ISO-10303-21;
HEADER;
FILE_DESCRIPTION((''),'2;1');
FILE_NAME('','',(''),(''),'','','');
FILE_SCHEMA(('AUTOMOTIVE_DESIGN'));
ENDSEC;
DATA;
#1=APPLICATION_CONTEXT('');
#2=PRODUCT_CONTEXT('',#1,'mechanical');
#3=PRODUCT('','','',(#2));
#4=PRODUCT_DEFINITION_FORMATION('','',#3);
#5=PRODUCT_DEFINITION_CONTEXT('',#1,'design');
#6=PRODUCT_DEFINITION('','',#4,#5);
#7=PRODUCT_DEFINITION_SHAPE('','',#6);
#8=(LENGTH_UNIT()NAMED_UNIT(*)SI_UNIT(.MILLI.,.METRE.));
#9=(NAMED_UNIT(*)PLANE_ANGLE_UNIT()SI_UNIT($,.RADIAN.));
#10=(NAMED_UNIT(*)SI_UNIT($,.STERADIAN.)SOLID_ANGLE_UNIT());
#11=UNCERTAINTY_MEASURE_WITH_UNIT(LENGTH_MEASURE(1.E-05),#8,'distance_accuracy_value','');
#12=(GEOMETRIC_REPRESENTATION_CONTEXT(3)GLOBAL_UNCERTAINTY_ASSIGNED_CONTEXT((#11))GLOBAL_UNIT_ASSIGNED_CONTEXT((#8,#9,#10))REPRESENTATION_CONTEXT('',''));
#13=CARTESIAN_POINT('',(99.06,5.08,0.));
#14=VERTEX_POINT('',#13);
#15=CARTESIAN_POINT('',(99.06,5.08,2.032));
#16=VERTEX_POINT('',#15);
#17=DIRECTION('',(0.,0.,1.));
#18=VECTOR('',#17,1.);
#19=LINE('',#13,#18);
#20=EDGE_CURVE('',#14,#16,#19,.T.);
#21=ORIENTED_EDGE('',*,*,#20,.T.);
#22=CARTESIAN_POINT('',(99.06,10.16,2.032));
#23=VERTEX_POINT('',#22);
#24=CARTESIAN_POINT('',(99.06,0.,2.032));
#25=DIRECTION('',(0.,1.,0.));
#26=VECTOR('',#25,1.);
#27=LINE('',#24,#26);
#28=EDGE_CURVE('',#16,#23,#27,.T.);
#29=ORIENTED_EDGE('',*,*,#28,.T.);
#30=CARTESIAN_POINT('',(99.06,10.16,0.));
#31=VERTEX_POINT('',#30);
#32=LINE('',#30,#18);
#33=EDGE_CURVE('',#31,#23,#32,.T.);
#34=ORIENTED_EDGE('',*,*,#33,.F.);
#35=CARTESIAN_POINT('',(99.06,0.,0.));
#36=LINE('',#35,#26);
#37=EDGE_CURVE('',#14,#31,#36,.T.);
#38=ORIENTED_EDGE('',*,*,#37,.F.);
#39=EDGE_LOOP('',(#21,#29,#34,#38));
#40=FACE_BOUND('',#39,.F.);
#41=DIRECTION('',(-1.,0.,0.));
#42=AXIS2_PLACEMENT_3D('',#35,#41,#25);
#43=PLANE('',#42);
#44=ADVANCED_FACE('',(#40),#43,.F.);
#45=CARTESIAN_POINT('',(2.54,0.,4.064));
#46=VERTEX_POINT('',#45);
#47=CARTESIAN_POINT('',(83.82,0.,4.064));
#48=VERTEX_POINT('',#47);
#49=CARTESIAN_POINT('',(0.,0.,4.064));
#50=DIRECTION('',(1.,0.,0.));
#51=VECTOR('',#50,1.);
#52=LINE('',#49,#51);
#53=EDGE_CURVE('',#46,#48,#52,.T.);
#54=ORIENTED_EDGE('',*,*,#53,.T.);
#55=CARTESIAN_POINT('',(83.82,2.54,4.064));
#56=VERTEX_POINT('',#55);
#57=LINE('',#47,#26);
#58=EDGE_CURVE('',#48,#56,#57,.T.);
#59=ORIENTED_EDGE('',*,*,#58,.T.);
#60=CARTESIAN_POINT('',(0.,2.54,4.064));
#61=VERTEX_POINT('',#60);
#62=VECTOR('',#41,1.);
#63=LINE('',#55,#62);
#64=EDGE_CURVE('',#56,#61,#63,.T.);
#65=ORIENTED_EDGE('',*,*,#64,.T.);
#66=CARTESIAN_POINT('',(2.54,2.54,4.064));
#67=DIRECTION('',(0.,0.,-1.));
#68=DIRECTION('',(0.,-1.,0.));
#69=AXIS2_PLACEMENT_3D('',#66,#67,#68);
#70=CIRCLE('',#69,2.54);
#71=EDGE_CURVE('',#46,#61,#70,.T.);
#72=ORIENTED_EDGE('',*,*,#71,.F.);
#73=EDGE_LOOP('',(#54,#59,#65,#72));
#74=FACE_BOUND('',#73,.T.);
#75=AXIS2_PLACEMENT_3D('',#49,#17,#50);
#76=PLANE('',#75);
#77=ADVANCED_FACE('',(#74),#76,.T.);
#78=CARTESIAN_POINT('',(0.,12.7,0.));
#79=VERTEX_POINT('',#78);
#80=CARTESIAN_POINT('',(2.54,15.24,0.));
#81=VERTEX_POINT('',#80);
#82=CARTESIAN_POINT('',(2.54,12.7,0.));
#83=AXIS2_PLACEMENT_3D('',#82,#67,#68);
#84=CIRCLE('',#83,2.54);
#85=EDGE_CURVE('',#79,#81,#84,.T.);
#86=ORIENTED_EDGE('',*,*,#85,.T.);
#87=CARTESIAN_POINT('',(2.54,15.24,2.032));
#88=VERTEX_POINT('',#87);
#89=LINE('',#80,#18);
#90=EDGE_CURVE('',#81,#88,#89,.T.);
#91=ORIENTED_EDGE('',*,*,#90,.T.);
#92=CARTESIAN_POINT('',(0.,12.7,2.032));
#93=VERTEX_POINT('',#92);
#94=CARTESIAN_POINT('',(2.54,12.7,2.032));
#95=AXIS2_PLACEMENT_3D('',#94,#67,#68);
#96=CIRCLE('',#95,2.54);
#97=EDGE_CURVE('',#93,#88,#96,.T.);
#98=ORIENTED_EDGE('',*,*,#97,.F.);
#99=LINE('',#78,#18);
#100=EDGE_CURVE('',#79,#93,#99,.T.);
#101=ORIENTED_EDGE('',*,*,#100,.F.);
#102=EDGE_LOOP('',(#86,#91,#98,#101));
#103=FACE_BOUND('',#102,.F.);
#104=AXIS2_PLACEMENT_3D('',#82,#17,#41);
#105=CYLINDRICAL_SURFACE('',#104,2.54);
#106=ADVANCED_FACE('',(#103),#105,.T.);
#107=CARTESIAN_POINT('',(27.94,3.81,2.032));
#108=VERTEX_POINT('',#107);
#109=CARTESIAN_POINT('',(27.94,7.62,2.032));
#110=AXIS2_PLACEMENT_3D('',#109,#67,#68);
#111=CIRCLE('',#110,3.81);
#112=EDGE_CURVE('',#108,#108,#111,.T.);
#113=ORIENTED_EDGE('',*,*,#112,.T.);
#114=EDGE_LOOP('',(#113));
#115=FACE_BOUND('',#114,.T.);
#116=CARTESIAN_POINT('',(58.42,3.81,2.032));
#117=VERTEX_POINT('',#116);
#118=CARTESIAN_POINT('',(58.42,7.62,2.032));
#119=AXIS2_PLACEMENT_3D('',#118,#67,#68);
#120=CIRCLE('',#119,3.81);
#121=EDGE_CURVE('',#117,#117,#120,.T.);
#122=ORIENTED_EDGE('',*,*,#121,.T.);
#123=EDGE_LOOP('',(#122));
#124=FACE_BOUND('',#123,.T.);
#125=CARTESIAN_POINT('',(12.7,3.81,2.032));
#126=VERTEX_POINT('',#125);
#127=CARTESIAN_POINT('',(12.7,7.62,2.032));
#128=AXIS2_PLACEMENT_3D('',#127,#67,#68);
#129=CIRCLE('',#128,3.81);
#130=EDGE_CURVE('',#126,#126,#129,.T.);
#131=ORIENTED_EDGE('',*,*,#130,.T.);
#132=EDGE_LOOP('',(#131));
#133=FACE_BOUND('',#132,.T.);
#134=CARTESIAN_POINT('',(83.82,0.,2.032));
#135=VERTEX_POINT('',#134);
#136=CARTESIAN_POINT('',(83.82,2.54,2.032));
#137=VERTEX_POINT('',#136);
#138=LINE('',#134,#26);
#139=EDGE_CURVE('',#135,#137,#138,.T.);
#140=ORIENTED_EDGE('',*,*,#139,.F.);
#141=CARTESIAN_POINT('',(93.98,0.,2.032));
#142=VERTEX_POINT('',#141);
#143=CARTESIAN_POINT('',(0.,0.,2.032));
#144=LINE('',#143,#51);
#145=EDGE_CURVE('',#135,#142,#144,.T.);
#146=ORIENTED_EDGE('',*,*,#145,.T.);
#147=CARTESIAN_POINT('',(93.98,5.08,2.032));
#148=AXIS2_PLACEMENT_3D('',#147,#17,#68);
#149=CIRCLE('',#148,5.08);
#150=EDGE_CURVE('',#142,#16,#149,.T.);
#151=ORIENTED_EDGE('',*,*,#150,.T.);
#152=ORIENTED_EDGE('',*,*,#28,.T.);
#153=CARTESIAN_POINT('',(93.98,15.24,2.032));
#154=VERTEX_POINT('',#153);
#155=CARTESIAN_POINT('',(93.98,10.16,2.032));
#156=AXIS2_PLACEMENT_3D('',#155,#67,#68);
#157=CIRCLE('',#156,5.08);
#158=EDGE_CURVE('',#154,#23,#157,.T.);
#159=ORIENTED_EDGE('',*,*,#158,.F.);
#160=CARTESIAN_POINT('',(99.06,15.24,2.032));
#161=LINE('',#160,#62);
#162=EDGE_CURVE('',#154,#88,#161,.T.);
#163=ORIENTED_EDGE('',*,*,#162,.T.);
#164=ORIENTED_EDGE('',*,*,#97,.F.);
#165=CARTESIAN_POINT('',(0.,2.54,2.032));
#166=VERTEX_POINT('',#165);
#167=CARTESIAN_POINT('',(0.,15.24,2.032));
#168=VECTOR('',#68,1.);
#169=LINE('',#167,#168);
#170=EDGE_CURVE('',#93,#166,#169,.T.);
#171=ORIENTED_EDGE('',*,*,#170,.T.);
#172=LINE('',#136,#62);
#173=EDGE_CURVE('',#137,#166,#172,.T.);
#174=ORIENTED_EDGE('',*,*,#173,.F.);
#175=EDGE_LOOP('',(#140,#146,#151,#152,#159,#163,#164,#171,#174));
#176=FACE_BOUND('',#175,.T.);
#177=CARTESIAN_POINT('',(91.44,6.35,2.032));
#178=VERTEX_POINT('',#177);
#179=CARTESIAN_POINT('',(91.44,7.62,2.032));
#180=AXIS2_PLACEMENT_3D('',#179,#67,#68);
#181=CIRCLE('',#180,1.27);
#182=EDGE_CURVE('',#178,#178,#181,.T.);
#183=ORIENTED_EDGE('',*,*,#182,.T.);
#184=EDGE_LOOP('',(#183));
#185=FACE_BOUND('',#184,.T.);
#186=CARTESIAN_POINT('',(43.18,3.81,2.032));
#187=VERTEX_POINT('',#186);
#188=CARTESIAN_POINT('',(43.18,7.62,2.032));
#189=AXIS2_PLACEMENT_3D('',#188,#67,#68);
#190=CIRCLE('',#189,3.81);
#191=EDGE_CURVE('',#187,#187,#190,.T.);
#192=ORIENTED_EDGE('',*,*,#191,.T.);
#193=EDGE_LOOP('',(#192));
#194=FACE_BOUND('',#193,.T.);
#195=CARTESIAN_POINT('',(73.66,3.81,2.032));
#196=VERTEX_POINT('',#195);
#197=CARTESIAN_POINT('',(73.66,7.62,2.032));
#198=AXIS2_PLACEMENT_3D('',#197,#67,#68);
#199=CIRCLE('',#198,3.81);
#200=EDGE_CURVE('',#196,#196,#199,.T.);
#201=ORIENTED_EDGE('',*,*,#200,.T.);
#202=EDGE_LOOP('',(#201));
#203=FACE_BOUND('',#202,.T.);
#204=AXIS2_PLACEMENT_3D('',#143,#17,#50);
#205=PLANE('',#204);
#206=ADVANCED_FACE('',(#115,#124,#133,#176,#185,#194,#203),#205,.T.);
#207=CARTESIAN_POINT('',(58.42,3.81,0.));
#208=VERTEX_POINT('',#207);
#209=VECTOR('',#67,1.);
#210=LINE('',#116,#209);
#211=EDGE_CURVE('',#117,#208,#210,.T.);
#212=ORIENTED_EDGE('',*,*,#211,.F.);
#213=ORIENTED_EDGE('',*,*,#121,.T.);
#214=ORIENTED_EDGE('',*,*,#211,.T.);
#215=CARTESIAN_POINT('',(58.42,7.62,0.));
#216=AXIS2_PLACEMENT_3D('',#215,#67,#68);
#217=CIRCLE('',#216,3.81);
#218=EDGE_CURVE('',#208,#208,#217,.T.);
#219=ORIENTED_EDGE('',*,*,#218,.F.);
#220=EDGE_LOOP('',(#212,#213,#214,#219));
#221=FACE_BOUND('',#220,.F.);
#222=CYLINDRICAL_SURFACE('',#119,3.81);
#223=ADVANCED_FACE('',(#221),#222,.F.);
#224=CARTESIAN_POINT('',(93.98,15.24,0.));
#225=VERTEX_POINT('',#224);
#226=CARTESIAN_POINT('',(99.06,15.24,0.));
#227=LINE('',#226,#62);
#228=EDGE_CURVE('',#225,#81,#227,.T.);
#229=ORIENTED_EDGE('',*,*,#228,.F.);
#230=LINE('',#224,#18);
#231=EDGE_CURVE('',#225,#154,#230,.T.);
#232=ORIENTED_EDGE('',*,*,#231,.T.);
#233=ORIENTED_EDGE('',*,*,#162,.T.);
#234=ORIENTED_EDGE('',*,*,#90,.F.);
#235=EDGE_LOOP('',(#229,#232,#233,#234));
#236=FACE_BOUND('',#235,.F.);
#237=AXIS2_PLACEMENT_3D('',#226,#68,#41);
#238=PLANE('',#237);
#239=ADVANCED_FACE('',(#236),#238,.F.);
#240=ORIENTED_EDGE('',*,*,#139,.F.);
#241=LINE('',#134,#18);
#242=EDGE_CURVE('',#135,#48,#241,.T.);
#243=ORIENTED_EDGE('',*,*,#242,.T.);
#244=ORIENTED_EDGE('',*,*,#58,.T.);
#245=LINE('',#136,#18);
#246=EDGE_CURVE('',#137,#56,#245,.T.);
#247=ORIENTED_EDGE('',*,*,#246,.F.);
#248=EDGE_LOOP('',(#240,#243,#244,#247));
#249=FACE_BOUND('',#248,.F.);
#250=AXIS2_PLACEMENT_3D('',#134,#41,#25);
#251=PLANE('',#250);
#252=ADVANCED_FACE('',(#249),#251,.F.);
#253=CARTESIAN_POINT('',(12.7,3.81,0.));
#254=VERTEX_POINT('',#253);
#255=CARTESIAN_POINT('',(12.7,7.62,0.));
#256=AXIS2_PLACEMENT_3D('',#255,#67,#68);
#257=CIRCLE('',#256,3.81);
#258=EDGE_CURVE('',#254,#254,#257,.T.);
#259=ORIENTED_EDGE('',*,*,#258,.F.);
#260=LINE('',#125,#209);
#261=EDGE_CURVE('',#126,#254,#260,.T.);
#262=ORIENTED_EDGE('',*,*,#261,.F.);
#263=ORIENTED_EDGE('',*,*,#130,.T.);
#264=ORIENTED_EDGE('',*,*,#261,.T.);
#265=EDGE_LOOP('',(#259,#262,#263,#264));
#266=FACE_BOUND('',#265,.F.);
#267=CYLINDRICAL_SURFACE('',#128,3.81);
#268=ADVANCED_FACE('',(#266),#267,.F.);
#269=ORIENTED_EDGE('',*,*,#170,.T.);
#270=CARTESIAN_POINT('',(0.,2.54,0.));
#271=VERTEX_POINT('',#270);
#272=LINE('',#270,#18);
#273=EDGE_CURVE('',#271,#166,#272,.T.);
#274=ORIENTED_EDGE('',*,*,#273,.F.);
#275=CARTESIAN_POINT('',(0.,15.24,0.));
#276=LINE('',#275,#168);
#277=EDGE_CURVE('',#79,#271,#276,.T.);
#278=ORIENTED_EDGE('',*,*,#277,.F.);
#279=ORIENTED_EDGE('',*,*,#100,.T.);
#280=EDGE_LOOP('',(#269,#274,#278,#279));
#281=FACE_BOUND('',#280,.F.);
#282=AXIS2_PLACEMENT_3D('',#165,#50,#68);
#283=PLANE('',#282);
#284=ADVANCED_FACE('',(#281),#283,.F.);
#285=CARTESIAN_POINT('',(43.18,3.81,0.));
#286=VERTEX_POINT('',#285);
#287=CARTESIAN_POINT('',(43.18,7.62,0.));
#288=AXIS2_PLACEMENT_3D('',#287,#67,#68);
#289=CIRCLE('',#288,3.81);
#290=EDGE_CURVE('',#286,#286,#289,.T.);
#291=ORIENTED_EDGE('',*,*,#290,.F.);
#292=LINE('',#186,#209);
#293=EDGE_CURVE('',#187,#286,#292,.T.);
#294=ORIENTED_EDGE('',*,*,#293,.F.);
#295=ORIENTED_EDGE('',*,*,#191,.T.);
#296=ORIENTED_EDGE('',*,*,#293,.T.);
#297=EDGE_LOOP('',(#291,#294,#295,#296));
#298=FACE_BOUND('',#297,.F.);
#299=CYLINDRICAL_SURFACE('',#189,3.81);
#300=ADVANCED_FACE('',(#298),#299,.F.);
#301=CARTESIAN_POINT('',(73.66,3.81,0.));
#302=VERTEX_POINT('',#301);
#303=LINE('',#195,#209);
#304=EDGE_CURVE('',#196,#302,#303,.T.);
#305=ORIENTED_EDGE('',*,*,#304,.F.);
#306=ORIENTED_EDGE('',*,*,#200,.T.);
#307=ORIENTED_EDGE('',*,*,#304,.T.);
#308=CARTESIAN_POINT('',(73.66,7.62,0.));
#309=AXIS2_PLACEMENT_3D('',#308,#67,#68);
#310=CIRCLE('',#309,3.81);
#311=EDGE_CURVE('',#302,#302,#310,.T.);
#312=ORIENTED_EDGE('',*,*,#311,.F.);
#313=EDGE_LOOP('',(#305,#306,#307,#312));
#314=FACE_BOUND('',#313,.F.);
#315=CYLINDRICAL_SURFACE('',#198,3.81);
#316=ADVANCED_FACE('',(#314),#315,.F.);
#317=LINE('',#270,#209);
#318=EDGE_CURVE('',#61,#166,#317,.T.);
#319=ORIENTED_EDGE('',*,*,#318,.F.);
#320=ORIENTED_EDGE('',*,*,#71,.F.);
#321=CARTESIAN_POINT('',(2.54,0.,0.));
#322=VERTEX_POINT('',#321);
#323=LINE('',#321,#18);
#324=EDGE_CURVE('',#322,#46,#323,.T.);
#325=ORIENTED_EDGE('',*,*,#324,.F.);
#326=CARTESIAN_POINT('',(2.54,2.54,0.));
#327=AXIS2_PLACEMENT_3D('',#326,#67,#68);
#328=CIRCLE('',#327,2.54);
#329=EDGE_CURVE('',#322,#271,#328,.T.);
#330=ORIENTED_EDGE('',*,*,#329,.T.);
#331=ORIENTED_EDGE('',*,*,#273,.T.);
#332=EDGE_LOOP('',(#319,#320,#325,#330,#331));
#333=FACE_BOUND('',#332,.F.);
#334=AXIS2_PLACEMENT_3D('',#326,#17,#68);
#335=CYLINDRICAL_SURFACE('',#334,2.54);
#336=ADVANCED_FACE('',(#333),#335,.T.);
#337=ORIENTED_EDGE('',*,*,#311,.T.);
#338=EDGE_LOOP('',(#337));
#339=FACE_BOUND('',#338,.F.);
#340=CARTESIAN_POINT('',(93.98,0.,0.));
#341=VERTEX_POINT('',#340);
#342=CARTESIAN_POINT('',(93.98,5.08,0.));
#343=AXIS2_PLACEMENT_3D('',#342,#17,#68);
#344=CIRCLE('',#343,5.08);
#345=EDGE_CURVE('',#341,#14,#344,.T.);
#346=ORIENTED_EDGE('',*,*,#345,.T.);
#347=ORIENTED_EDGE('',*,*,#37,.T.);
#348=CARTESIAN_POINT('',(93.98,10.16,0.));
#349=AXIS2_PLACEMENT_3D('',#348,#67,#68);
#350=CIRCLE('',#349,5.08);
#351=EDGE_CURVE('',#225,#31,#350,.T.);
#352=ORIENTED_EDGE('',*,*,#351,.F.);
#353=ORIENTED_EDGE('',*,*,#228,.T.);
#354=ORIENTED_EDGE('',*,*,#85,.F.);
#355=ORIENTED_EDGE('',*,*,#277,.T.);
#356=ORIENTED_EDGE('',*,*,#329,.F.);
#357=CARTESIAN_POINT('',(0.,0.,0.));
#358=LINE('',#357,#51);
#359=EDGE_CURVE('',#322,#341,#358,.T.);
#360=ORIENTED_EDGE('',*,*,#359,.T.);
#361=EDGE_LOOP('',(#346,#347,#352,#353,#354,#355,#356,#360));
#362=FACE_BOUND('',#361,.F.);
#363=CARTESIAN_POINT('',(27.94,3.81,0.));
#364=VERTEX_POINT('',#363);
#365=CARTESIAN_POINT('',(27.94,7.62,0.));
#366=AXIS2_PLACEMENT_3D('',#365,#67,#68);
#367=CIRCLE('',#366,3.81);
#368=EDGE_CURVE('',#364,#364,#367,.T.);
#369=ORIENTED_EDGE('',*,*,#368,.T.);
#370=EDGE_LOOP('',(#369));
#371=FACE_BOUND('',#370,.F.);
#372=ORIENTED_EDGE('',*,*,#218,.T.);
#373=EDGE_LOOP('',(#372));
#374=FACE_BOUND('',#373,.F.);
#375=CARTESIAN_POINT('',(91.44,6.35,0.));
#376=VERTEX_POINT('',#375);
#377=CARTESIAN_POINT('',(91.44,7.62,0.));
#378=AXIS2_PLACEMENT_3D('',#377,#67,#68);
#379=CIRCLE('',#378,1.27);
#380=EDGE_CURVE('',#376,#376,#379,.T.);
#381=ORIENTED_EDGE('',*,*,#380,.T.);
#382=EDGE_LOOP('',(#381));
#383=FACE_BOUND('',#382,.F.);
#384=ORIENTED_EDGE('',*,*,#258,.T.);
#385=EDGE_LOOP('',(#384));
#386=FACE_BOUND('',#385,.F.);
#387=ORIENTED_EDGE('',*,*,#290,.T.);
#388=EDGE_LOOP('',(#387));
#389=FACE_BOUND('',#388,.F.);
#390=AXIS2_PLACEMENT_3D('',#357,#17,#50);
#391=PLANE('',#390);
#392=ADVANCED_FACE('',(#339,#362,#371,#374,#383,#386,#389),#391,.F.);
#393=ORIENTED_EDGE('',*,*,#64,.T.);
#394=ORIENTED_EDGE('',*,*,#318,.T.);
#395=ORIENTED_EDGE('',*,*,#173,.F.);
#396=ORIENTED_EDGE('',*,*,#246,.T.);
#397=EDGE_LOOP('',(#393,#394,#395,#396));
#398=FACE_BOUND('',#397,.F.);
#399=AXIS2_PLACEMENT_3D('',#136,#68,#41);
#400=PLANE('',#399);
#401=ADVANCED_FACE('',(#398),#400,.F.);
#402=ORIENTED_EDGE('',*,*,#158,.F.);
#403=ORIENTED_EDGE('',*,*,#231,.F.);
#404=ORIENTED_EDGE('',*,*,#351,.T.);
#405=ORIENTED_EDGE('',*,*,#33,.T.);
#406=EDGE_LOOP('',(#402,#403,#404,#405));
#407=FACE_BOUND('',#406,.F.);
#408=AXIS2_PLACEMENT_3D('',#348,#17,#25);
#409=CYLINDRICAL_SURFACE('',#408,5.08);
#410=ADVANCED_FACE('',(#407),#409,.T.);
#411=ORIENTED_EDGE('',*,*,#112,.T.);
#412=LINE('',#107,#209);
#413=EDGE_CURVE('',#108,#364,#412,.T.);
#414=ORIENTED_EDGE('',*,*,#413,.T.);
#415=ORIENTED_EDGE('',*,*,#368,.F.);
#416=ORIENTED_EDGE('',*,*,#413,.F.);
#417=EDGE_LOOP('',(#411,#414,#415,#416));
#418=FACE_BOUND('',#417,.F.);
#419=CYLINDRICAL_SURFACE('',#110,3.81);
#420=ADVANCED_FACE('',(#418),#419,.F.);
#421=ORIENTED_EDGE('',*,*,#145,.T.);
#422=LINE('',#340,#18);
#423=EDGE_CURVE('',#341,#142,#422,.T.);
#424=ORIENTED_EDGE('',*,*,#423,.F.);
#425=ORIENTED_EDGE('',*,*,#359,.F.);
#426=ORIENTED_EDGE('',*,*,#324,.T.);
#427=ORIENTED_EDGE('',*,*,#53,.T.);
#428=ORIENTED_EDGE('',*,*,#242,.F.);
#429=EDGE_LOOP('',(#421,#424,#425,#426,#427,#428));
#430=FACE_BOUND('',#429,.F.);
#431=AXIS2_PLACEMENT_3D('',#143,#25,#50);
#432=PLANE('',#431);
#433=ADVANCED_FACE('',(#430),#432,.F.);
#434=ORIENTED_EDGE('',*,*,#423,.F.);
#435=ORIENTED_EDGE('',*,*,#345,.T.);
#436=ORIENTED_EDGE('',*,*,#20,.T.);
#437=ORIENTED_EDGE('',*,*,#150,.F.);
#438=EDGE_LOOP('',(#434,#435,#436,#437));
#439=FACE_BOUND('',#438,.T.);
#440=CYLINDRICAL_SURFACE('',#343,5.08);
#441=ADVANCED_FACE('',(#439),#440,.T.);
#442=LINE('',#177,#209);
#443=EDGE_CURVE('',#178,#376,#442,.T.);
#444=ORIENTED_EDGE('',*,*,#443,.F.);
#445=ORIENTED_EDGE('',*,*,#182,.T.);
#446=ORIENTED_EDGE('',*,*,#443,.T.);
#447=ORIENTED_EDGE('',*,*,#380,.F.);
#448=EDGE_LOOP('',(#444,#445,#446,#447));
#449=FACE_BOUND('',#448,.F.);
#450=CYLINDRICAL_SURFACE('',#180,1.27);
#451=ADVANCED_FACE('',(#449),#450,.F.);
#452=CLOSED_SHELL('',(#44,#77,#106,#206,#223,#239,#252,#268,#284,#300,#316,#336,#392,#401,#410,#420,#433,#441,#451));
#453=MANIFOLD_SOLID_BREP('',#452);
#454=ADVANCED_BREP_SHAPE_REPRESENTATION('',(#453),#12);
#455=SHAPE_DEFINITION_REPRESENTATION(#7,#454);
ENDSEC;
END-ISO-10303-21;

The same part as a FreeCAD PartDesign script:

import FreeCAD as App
import Part
import Sketcher

V = App.Vector
Q = App.Units.Quantity


def edges_at(feature, points):
    """Names of the edges that pass closest to the given points."""
    edges = feature.Shape.Edges
    near = lambda p: min(range(len(edges)), key=lambda i: edges[i].distToShape(Part.Vertex(*p))[0])
    return sorted({f"Edge{near(p) + 1}" for p in points})

doc = App.newDocument("Part")
body = doc.addObject("PartDesign::Body", "Body")

# Sketch on XY plane
sketch1 = body.newObject("Sketcher::SketchObject", "Sketch")
sketch1.AttachmentSupport = (doc.getObject("XY_Plane"), [""])
sketch1.MapMode = "FlatFace"
sketch1.addGeometry([
    Part.LineSegment(V(0, 15.24, 0), V(0, 0, 0)),
    Part.LineSegment(V(0, 0, 0), V(99.06, 0, 0)),
    Part.LineSegment(V(99.06, 0, 0), V(99.06, 15.24, 0)),
    Part.LineSegment(V(99.06, 15.24, 0), V(0, 15.24, 0)),
], False)
sketch1.addConstraint([
    Sketcher.Constraint("Coincident", 0, 2, 1, 1),
    Sketcher.Constraint("Coincident", 1, 2, 2, 1),
    Sketcher.Constraint("Coincident", 2, 2, 3, 1),
    Sketcher.Constraint("Coincident", 3, 2, 0, 1),
    Sketcher.Constraint("Vertical", 0),
    Sketcher.Constraint("Horizontal", 1),
    Sketcher.Constraint("Vertical", 2),
    Sketcher.Constraint("Horizontal", 3),
    Sketcher.Constraint("Coincident", 0, 2, -1, 1),
    Sketcher.Constraint("DistanceX", 1, 1, 1, 2, Q("3.9 in")),
    Sketcher.Constraint("DistanceY", 0, 2, 0, 1, Q("0.6 in")),
])
pad1 = body.newObject("PartDesign::Pad", "Pad")
pad1.Profile = sketch1
pad1.Length = Q("0.08 in")

# Sketch on XY plane
sketch2 = body.newObject("Sketcher::SketchObject", "Sketch001")
sketch2.AttachmentSupport = (doc.getObject("XY_Plane"), [""])
sketch2.MapMode = "FlatFace"
sketch2.AttachmentOffset = App.Placement(V(0, 0, 0.08 * 25.4), App.Rotation())
sketch2.addGeometry(Part.Circle(V(12.7, 7.62, 0), V(0, 0, 1), 3.81), False)
sketch2.addConstraint([
    Sketcher.Constraint("Diameter", 0, Q("0.3 in")),
    Sketcher.Constraint("DistanceX", -1, 1, 0, 3, Q("0.5 in")),
    Sketcher.Constraint("DistanceY", -1, 1, 0, 3, Q("0.3 in")),
])
doc.recompute()
hole = body.newObject("PartDesign::Hole", "Hole")
hole.Profile = sketch2
hole.ThreadType = "None"
hole.Diameter = Q("0.3 in")
hole.DepthType = "ThroughAll"
doc.recompute()

linearpattern = body.newObject("PartDesign::LinearPattern", "LinearPattern")
linearpattern.Originals = [hole]
linearpattern.Direction = (doc.getObject("X_Axis"), [""])
linearpattern.Mode = "offset"
linearpattern.Offset = Q("0.6 in")
linearpattern.Occurrences = 5
body.Tip = linearpattern

# Sketch on XY plane
sketch3 = body.newObject("Sketcher::SketchObject", "Sketch002")
sketch3.AttachmentSupport = (doc.getObject("XY_Plane"), [""])
sketch3.MapMode = "FlatFace"
sketch3.AttachmentOffset = App.Placement(V(0, 0, 0.08 * 25.4), App.Rotation())
sketch3.addGeometry(Part.Circle(V(91.44, 7.62, 0), V(0, 0, 1), 1.27), False)
sketch3.addConstraint([
    Sketcher.Constraint("Diameter", 0, Q("0.1 in")),
    Sketcher.Constraint("DistanceX", -1, 1, 0, 3, Q("3.6 in")),
    Sketcher.Constraint("DistanceY", -1, 1, 0, 3, Q("0.3 in")),
])
doc.recompute()
hole2 = body.newObject("PartDesign::Hole", "Hole001")
hole2.Profile = sketch3
hole2.ThreadType = "None"
hole2.Diameter = Q("0.1 in")
hole2.DepthType = "ThroughAll"

# Sketch on XY plane
sketch4 = body.newObject("Sketcher::SketchObject", "Sketch003")
sketch4.AttachmentSupport = (doc.getObject("XY_Plane"), [""])
sketch4.MapMode = "FlatFace"
sketch4.AttachmentOffset = App.Placement(V(0, 0, 0.08 * 25.4), App.Rotation())
sketch4.addGeometry([
    Part.LineSegment(V(0, 2.54, 0), V(0, 0, 0)),
    Part.LineSegment(V(0, 0, 0), V(83.82, 0, 0)),
    Part.LineSegment(V(83.82, 0, 0), V(83.82, 2.54, 0)),
    Part.LineSegment(V(83.82, 2.54, 0), V(0, 2.54, 0)),
], False)
sketch4.addConstraint([
    Sketcher.Constraint("Coincident", 0, 2, 1, 1),
    Sketcher.Constraint("Coincident", 1, 2, 2, 1),
    Sketcher.Constraint("Coincident", 2, 2, 3, 1),
    Sketcher.Constraint("Coincident", 3, 2, 0, 1),
    Sketcher.Constraint("Vertical", 0),
    Sketcher.Constraint("Horizontal", 1),
    Sketcher.Constraint("Vertical", 2),
    Sketcher.Constraint("Horizontal", 3),
    Sketcher.Constraint("Coincident", 0, 2, -1, 1),
    Sketcher.Constraint("DistanceX", 1, 1, 1, 2, Q("3.3 in")),
    Sketcher.Constraint("DistanceY", 0, 2, 0, 1, Q("0.1 in")),
])
pad2 = body.newObject("PartDesign::Pad", "Pad001")
pad2.Profile = sketch4
pad2.Length = Q("0.08 in")
doc.recompute()

fillet = body.newObject("PartDesign::Fillet", "Fillet")
fillet.Base = (pad2, edges_at(pad2, [(99.06, 15.24, 1.016), (99.06, 0, 1.016)]))
fillet.Radius = Q("0.2 in")
doc.recompute()

fillet2 = body.newObject("PartDesign::Fillet", "Fillet001")
fillet2.Base = (fillet, edges_at(fillet, [(0, 15.24, 1.016), (0, 0, 2.032)]))
fillet2.Radius = Q("0.1 in")

doc.recompute()
